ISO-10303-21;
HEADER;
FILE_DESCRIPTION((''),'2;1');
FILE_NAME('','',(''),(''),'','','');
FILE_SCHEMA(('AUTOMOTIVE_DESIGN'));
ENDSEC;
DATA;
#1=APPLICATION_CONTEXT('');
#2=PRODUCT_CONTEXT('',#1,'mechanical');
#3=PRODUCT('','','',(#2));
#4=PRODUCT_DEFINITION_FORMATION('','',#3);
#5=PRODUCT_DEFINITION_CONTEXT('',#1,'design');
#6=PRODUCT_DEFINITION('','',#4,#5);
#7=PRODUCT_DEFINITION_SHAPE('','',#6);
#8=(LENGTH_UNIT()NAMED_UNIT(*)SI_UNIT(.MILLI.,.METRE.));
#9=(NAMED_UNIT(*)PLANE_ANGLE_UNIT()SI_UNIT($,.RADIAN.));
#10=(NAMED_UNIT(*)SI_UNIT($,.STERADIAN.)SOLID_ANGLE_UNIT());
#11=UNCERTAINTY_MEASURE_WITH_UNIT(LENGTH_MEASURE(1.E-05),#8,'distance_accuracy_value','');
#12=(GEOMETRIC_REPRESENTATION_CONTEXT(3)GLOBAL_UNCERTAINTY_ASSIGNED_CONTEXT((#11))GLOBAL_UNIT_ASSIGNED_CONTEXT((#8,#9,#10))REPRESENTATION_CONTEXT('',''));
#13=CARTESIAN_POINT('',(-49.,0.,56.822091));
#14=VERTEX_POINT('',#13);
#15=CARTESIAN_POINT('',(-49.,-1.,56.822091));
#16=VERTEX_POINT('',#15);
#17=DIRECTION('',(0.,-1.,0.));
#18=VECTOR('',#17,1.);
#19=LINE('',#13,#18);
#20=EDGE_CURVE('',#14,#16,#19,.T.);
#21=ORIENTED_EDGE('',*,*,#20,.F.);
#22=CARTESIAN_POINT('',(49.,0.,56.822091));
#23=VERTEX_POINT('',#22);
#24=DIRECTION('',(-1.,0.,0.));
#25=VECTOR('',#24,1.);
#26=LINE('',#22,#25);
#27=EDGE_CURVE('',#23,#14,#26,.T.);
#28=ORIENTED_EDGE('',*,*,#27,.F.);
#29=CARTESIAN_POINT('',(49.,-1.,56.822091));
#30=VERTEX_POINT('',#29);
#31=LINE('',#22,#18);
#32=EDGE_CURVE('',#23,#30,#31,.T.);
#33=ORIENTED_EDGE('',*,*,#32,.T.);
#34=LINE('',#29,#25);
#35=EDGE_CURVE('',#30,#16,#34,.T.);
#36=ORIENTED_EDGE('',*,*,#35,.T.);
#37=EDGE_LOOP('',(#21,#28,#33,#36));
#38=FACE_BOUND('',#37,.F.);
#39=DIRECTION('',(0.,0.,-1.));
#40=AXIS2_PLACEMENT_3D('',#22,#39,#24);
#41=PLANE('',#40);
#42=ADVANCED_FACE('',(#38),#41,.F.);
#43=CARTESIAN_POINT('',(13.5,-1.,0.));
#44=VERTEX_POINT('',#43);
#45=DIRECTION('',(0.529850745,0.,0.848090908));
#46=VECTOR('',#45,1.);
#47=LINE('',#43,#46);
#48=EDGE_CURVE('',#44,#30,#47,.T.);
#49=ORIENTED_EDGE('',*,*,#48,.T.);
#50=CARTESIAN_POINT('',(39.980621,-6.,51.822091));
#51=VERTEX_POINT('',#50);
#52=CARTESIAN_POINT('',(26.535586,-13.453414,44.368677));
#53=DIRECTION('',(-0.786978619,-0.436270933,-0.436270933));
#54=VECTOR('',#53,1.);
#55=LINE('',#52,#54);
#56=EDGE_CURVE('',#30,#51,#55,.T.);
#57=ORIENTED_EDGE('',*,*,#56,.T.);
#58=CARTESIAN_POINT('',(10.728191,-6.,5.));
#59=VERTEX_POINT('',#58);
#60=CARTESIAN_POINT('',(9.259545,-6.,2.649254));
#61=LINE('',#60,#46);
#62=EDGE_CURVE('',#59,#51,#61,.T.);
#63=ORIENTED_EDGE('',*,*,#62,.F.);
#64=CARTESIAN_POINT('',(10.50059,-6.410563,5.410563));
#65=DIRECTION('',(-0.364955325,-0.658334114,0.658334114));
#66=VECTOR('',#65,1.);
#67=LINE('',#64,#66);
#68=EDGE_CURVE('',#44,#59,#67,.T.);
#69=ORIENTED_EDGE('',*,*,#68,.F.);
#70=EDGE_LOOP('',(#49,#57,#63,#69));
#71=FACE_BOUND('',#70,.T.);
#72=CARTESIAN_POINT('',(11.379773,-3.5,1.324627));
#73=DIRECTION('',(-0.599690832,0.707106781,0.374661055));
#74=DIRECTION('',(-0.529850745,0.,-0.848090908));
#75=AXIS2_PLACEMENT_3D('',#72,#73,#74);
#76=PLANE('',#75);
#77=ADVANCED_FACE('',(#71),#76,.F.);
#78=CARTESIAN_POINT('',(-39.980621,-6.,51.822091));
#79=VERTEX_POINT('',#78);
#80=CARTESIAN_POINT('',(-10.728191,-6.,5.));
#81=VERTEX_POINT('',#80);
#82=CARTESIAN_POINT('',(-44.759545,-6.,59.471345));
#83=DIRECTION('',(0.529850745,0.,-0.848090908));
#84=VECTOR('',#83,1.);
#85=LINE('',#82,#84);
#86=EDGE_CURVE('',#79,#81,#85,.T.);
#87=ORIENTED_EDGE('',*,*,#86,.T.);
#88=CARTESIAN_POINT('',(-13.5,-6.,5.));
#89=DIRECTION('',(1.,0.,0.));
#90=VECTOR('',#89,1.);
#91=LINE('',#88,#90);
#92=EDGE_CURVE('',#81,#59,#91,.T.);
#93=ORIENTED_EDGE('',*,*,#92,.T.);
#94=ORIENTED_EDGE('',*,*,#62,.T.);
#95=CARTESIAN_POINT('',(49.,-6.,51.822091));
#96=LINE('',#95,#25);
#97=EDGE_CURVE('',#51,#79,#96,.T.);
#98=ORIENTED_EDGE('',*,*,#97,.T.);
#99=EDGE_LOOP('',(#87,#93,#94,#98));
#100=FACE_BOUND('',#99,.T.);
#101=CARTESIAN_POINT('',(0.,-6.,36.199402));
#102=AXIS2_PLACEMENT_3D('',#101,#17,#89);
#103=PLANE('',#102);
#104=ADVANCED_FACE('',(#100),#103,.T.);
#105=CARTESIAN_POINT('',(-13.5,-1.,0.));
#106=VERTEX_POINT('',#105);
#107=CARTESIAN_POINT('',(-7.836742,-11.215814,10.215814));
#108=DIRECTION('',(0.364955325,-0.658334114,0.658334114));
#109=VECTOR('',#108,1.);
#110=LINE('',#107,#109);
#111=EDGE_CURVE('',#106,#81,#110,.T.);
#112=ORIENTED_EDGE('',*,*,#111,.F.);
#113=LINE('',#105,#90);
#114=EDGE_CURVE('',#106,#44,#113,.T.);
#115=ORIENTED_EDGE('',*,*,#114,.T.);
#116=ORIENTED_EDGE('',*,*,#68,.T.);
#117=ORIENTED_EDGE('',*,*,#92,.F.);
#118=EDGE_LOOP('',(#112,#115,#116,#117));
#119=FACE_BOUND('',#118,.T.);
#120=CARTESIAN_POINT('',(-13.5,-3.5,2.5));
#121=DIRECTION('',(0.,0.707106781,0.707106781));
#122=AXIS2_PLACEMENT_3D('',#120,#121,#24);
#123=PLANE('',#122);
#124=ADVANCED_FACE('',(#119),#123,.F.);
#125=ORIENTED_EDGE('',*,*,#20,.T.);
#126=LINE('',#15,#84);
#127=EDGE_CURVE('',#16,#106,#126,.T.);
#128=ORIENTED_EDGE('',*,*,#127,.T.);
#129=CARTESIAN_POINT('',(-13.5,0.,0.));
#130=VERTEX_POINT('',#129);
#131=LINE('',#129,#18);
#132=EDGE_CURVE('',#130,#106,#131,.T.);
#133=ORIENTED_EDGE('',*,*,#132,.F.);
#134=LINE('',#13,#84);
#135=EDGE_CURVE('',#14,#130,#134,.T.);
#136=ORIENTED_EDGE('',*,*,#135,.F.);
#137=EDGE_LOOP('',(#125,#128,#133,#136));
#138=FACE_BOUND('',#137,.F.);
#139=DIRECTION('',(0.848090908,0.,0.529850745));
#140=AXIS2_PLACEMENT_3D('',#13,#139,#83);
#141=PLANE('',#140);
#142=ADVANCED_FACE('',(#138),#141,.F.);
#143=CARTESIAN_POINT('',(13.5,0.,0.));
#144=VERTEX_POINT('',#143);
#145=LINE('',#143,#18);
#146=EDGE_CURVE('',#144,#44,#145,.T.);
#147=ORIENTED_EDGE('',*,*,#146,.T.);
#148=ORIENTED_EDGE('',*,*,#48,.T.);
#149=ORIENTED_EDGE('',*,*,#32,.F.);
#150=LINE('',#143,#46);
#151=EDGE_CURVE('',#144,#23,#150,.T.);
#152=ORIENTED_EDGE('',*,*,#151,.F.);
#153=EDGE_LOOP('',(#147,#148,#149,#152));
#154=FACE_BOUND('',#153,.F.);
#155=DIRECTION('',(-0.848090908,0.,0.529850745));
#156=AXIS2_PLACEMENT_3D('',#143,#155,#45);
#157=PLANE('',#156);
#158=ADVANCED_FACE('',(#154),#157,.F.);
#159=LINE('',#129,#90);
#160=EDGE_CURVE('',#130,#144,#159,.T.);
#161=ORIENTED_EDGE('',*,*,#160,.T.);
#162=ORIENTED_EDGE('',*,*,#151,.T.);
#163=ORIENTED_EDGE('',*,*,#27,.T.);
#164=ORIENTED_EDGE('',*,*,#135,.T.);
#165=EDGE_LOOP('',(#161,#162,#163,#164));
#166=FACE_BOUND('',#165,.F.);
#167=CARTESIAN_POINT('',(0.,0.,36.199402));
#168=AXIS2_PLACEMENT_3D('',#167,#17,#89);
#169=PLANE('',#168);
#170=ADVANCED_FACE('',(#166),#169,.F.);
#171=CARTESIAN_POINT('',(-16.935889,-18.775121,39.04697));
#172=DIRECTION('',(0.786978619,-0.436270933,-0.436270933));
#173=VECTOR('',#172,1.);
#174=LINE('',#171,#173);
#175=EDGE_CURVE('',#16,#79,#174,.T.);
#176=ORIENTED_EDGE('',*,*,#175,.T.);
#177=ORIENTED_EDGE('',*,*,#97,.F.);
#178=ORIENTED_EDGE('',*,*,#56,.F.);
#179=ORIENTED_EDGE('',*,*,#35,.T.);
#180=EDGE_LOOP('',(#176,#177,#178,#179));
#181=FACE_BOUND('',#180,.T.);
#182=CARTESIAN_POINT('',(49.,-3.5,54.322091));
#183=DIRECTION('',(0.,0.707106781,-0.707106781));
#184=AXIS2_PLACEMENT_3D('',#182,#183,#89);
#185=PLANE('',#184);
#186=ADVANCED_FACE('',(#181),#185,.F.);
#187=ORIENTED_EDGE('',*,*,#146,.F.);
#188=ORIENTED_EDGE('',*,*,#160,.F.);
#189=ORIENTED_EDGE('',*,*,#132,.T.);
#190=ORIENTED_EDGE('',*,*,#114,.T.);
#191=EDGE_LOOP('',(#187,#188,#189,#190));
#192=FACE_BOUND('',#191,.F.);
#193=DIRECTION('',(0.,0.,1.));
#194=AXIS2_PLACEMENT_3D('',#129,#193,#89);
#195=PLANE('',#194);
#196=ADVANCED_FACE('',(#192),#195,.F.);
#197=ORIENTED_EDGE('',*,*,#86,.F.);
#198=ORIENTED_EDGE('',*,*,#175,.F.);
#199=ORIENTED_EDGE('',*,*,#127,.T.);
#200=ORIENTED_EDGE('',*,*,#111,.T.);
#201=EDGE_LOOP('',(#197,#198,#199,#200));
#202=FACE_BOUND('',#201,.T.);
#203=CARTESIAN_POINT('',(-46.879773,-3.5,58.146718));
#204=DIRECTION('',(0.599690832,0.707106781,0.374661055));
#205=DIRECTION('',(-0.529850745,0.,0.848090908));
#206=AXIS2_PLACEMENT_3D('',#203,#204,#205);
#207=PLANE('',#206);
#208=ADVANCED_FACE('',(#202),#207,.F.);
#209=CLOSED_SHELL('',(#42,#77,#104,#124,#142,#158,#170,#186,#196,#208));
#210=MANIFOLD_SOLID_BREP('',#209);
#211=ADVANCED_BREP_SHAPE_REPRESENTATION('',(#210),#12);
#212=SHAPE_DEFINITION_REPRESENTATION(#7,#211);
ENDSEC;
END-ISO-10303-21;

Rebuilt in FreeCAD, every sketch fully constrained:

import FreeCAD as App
import Part
import Sketcher
from FreeCAD import Vector
Q = App.Units.Quantity


def edges_at(feature, points):
    """Names of the edges that pass closest to the given points."""
    edges = feature.Shape.Edges
    near = lambda p: min(range(len(edges)), key=lambda i: edges[i].distToShape(Part.Vertex(*p))[0])
    return sorted({f"Edge{near(p) + 1}" for p in points})

doc = App.newDocument("Part")
params = doc.addObject("Spreadsheet::Sheet", "Params")
for row, (alias, value) in enumerate([
    ("sketch1_width", "98 mm"),
    ("sketch1_width2", "27 mm"),
    ("sketch1_length", "67 mm"),
    ("pad1_length", "6 mm"),
    ("chamfer_size", "5 mm"),
], start=1):
    params.set(f"A{row}", alias)
    params.set(f"B{row}", "=" + value)
    params.setAlias(f"B{row}", alias)

body = doc.addObject("PartDesign::Body", "Body")

# Sketch on XZ plane
sketch1 = body.newObject("Sketcher::SketchObject", "Sketch")
sketch1.AttachmentSupport = (doc.getObject("XZ_Plane"), [""])
sketch1.MapMode = "FlatFace"
sketch1.addGeometry(Part.LineSegment(Vector(49, 57, 0), Vector(-49, 57, 0)), False)
sketch1.addGeometry(Part.LineSegment(Vector(-49, 57, 0), Vector(-14, 0, 0)), False)
sketch1.addGeometry(Part.LineSegment(Vector(-14, 0, 0), Vector(14, 0, 0)), False)
sketch1.addGeometry(Part.LineSegment(Vector(14, 0, 0), Vector(49, 57, 0)), False)
sketch1.addConstraint(Sketcher.Constraint("Coincident", 0, 2, 1, 1))
sketch1.addConstraint(Sketcher.Constraint("Coincident", 1, 2, 2, 1))
sketch1.addConstraint(Sketcher.Constraint("Coincident", 2, 2, 3, 1))
sketch1.addConstraint(Sketcher.Constraint("Coincident", 3, 2, 0, 1))
sketch1.addConstraint(Sketcher.Constraint("Horizontal", 0))
sketch1.addConstraint(Sketcher.Constraint("Horizontal", 2))
sketch1.addConstraint(Sketcher.Constraint("Symmetric", 1, 2, 2, 2, -1, 1))
sketch1.addConstraint(Sketcher.Constraint("Equal", 1, 3))
sketch1.addConstraint(Sketcher.Constraint("DistanceX", 0, 2, 0, 1, Q("98 mm")))
sketch1.addConstraint(Sketcher.Constraint("DistanceX", 2, 1, 2, 2, Q("27 mm")))
sketch1.addConstraint(Sketcher.Constraint("Distance", 1, Q("67 mm")))
sketch1.setExpression("Constraints[8]", "Params.sketch1_width")
sketch1.setExpression("Constraints[9]", "Params.sketch1_width2")
sketch1.setExpression("Constraints[10]", "Params.sketch1_length")
pad1 = body.newObject("PartDesign::Pad", "Pad")
pad1.Profile = sketch1
pad1.setExpression("Length", "Params.pad1_length")
doc.recompute()

chamfer = body.newObject("PartDesign::Chamfer", "Chamfer")
chamfer.Base = (pad1, edges_at(pad1, [
    (-31.25, -6, 28.411),
    (0, -6, 56.822),
    (31.25, -6, 28.411),
    (0, -6, 0),
]))
chamfer.setExpression("Size", "Params.chamfer_size")

doc.recompute()
